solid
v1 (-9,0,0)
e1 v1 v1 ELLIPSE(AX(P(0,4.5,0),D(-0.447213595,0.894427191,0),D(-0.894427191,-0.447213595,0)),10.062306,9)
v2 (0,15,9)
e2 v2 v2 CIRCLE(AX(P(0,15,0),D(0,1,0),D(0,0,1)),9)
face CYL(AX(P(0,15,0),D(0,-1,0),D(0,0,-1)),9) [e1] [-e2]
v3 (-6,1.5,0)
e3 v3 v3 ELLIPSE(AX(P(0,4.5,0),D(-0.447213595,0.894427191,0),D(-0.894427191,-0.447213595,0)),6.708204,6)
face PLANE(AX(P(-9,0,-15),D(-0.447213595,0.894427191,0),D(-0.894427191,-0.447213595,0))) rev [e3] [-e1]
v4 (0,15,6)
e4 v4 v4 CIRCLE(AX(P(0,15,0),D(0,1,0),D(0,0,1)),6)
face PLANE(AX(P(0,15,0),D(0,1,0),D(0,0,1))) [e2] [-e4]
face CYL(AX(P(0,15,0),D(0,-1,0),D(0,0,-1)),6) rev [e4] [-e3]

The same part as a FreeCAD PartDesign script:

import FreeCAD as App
import Part
import Sketcher
from FreeCAD import Vector
Q = App.Units.Quantity

doc = App.newDocument("Part")
body = doc.addObject("PartDesign::Body", "Body")

# Sketch on XZ plane
sketch1 = doc.addObject("Sketcher::SketchObject", "Sketch")
body.addObject(sketch1)
sketch1.AttachmentSupport = (doc.XZ_Plane, [""])
sketch1.MapMode = "FlatFace"
sketch1.addGeometry(Part.Circle(Vector(0, 0, 0), Vector(0, 0, 1), 9), False)
sketch1.addGeometry(Part.Circle(Vector(0, 0, 0), Vector(0, 0, 1), 6), False)
sketch1.addConstraint(Sketcher.Constraint("Coincident", 0, 3, -1, 1))
sketch1.addConstraint(Sketcher.Constraint("Coincident", 1, 3, -1, 1))
sketch1.addConstraint(Sketcher.Constraint("Diameter", 0, Q("18 mm")))
sketch1.addConstraint(Sketcher.Constraint("Diameter", 1, Q("12 mm")))
pad1 = doc.addObject("PartDesign::Pad", "Pad")
body.addObject(pad1)
pad1.Profile = sketch1
pad1.Length = 15
pad1.Reversed = True

# Sketch on XY plane
sketch2 = doc.addObject("Sketcher::SketchObject", "Sketch001")
body.addObject(sketch2)
sketch2.AttachmentSupport = (doc.XY_Plane, [""])
sketch2.MapMode = "FlatFace"
sketch2.addGeometry(Part.LineSegment(Vector(9, 9, 0), Vector(-9, 0, 0)), False)
sketch2.addGeometry(Part.LineSegment(Vector(-9, 0, 0), Vector(9, 0, 0)), False)
sketch2.addGeometry(Part.LineSegment(Vector(9, 0, 0), Vector(9, 9, 0)), False)
sketch2.addConstraint(Sketcher.Constraint("Coincident", 0, 2, 1, 1))
sketch2.addConstraint(Sketcher.Constraint("Coincident", 1, 2, 2, 1))
sketch2.addConstraint(Sketcher.Constraint("Coincident", 2, 2, 0, 1))
sketch2.addConstraint(Sketcher.Constraint("Horizontal", 1))
sketch2.addConstraint(Sketcher.Constraint("Vertical", 2))
sketch2.addConstraint(Sketcher.Constraint("Symmetric", 0, 2, 1, 2, -1, 1))
sketch2.addConstraint(Sketcher.Constraint("DistanceX", 1, 1, 1, 2, Q("18 mm")))
sketch2.addConstraint(Sketcher.Constraint("DistanceY", 2, 1, 2, 2, Q("9 mm")))
pocket1 = doc.addObject("PartDesign::Pocket", "Pocket")
body.addObject(pocket1)
pocket1.Profile = sketch2
pocket1.Length = 30
pocket1.Midplane = True

doc.recompute()
